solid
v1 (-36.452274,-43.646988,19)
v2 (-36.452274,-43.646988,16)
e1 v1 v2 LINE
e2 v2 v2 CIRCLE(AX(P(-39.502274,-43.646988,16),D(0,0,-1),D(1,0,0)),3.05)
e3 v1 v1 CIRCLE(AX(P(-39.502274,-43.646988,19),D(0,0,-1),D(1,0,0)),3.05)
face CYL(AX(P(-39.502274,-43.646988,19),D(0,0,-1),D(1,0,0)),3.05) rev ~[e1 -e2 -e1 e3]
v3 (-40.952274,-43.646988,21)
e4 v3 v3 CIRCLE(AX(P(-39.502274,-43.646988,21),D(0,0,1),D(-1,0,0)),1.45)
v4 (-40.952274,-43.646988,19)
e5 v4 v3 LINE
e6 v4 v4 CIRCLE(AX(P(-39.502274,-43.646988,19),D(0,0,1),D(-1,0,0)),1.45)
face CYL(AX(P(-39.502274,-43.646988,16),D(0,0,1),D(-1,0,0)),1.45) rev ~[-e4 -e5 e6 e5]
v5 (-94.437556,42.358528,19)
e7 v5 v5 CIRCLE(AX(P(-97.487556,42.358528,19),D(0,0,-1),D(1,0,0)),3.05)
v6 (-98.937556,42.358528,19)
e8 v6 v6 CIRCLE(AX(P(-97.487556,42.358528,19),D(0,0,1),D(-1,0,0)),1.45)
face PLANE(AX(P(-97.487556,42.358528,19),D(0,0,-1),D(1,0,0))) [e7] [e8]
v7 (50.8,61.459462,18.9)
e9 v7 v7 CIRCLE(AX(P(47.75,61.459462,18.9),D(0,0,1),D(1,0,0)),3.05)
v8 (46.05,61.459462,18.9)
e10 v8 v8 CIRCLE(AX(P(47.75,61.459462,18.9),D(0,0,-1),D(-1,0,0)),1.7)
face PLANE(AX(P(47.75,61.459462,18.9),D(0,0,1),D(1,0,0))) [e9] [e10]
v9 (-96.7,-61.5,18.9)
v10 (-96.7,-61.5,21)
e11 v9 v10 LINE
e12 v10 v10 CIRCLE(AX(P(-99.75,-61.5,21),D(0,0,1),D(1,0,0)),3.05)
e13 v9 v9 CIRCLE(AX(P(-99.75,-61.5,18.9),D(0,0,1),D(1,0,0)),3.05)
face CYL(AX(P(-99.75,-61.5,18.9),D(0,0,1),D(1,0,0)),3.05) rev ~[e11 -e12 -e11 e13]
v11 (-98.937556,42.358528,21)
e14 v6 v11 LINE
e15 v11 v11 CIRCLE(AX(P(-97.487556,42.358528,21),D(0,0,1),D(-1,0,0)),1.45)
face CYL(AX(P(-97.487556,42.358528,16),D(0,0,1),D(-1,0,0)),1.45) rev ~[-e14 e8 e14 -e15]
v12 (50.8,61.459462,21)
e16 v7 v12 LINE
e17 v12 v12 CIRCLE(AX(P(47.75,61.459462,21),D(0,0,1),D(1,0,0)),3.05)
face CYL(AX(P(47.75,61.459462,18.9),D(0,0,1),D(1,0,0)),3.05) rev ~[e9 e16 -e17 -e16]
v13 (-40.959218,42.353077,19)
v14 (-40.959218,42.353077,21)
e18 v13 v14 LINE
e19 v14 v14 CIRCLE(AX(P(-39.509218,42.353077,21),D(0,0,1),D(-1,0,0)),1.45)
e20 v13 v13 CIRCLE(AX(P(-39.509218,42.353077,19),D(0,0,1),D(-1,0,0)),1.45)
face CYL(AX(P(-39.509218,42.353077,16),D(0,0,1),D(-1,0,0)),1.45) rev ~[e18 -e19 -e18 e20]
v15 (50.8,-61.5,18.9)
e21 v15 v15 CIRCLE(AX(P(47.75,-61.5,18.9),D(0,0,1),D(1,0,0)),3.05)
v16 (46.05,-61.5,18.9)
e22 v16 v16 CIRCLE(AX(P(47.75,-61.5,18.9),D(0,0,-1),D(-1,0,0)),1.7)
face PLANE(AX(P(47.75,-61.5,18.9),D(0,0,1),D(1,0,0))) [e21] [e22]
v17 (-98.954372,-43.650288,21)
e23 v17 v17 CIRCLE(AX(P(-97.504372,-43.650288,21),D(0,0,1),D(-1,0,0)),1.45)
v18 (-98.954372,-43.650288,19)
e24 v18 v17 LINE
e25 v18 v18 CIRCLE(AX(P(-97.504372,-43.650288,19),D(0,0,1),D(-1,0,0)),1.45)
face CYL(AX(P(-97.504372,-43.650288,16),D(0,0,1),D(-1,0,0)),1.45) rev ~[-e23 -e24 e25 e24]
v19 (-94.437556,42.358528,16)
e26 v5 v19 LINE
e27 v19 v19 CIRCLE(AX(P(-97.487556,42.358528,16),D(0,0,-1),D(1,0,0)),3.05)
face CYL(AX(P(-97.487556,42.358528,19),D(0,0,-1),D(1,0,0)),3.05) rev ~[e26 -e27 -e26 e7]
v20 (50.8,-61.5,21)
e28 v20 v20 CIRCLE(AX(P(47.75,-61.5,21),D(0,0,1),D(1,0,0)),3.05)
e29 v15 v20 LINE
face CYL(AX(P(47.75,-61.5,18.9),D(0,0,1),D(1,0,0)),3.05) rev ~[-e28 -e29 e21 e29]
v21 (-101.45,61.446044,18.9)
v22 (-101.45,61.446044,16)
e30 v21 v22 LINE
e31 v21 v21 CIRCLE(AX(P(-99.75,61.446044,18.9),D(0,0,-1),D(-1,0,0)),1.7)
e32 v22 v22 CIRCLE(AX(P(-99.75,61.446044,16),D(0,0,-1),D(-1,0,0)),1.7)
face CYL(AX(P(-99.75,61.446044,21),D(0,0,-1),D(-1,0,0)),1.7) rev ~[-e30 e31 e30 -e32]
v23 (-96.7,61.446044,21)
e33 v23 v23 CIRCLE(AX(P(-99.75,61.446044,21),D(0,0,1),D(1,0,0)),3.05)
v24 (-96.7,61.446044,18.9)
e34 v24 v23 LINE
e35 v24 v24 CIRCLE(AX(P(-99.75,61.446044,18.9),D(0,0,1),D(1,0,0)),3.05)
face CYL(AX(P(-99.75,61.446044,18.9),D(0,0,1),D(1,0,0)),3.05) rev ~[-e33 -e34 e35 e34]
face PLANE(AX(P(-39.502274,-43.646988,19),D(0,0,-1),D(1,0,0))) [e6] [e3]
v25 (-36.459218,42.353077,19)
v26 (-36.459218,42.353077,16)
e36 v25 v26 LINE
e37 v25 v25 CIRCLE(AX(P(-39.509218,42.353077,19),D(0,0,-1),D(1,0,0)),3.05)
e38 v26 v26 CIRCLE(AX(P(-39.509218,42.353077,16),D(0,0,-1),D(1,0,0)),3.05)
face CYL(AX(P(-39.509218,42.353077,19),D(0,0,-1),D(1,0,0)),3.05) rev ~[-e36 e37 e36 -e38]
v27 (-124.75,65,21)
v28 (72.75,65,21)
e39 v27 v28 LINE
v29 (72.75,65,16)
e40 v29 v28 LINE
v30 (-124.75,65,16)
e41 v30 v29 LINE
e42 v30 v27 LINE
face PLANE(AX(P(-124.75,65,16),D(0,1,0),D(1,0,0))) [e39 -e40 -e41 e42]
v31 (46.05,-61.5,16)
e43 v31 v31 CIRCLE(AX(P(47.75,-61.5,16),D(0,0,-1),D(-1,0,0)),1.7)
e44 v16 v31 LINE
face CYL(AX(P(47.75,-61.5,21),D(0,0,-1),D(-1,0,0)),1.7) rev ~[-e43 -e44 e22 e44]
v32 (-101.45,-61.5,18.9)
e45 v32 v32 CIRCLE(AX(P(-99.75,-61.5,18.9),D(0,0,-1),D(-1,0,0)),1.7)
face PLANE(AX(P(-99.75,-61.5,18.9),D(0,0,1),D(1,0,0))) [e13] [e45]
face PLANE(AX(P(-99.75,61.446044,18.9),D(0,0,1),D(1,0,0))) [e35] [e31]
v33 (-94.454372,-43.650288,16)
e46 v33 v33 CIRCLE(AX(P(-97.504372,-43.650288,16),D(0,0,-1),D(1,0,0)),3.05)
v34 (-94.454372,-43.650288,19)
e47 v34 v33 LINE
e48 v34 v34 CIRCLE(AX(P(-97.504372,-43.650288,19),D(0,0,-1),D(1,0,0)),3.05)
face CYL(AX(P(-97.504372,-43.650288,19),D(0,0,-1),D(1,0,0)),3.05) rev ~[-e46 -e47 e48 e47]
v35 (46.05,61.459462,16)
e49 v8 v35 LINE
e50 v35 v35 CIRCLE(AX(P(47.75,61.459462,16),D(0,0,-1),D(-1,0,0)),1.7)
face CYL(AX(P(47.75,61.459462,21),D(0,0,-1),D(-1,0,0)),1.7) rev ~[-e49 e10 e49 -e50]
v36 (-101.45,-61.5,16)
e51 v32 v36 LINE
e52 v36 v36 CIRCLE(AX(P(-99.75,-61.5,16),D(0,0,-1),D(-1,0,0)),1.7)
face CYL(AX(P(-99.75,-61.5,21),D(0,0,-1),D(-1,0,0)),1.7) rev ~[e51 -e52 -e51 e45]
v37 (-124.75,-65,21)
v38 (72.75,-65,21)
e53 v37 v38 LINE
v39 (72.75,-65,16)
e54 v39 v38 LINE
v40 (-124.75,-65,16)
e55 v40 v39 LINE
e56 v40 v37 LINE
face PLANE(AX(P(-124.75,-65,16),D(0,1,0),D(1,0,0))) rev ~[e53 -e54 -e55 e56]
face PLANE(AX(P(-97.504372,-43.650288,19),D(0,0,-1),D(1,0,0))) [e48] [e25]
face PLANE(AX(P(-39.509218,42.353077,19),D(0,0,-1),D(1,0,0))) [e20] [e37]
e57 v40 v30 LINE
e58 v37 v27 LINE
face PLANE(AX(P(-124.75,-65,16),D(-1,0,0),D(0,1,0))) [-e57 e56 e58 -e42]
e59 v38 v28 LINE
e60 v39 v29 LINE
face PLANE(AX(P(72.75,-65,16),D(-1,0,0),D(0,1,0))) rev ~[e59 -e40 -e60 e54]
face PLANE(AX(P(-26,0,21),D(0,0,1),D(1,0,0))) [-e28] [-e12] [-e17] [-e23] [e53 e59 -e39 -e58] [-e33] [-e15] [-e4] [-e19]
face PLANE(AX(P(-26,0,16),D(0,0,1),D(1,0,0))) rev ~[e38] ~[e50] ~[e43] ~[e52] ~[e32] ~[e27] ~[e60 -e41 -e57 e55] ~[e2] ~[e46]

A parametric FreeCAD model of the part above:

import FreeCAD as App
import Part
import Sketcher
Q = App.Units.Quantity

doc = App.newDocument("Part")
body = doc.addObject("PartDesign::Body", "Body")

sketch1 = body.newObject("Sketcher::SketchObject", "Sketch")
sketch1.AttachmentSupport = (doc.getObject("XY_Plane"), [""])
sketch1.MapMode = "FlatFace"
sketch1.addGeometry([
    Part.LineSegment(App.Vector(-98.75, 65, 0), App.Vector(-98.75, -65, 0)),
    Part.LineSegment(App.Vector(-98.75, -65, 0), App.Vector(98.75, -65, 0)),
    Part.LineSegment(App.Vector(98.75, -65, 0), App.Vector(98.75, 65, 0)),
    Part.LineSegment(App.Vector(98.75, 65, 0), App.Vector(-98.75, 65, 0)),
], False)
sketch1.addConstraint([
    Sketcher.Constraint("Coincident", 0, 2, 1, 1),
    Sketcher.Constraint("Coincident", 1, 2, 2, 1),
    Sketcher.Constraint("Coincident", 2, 2, 3, 1),
    Sketcher.Constraint("Coincident", 3, 2, 0, 1),
    Sketcher.Constraint("Vertical", 0),
    Sketcher.Constraint("Horizontal", 1),
    Sketcher.Constraint("Vertical", 2),
    Sketcher.Constraint("Horizontal", 3),
    Sketcher.Constraint("Symmetric", 0, 2, 2, 2, -1, 1),
    Sketcher.Constraint("DistanceY", 0, 2, 0, 1, Q("130 mm")),
    Sketcher.Constraint("DistanceX", 1, 1, 1, 2, Q("197.5 mm")),
])
pad1 = body.newObject("PartDesign::Pad", "Pad")
pad1.Profile = sketch1
pad1.Length = 5

sketch2 = body.newObject("Sketcher::SketchObject", "Sketch001")
sketch2.AttachmentSupport = (doc.getObject("XY_Plane"), [""])
sketch2.MapMode = "FlatFace"
sketch2.AttachmentOffset = App.Placement(App.Vector(0, 0, 5), App.Rotation())
sketch2.addGeometry([
    Part.Circle(App.Vector(73.75, 61.459462, 0), App.Vector(0, 0, 1), 1.7),
    Part.Circle(App.Vector(-73.75, 61.446044, 0), App.Vector(0, 0, 1), 1.7),
    Part.Circle(App.Vector(-73.75, -61.5, 0), App.Vector(0, 0, 1), 1.7),
    Part.Circle(App.Vector(73.75, -61.5, 0), App.Vector(0, 0, 1), 1.7),
], False)
sketch2.addConstraint([
    Sketcher.Constraint("Equal", 0, 1),
    Sketcher.Constraint("Equal", 1, 2),
    Sketcher.Constraint("Equal", 2, 3),
    Sketcher.Constraint("Symmetric", 2, 3, 3, 3, -2),
    Sketcher.Constraint("Vertical", 1, 3, 2, 3),
    Sketcher.Constraint("Vertical", 0, 3, 3, 3),
    Sketcher.Constraint("Diameter", 0, Q("3.4 mm")),
    Sketcher.Constraint("DistanceY", 2, 3, -1, 1, Q("61.5 mm")),
    Sketcher.Constraint("DistanceX", 1, 3, 0, 3, Q("147.5 mm")),
    Sketcher.Constraint("DistanceY", 1, 3, 0, 3, Q("0.013418 mm")),
    Sketcher.Constraint("DistanceY", 2, 3, 0, 3, Q("122.959462 mm")),
])
doc.recompute()
hole = body.newObject("PartDesign::Hole", "Hole")
hole.Profile = sketch2
hole.ThreadType = "None"
hole.Diameter = 3.4
hole.DepthType = "Dimension"
hole.Depth = 25
hole.DrillPoint = "Flat"
hole.HoleCutType = "Counterbore"
hole.HoleCutDiameter = 6.1
hole.HoleCutDepth = 2.1

sketch3 = body.newObject("Sketcher::SketchObject", "Sketch002")
sketch3.AttachmentSupport = (doc.getObject("XY_Plane"), [""])
sketch3.MapMode = "FlatFace"
sketch3.addGeometry([
    Part.Circle(App.Vector(-13.502274, -43.646988, 0), App.Vector(0, 0, 1), 1.45),
    Part.Circle(App.Vector(-71.504372, -43.650288, 0), App.Vector(0, 0, 1), 1.45),
    Part.Circle(App.Vector(-13.509218, 42.353077, 0), App.Vector(0, 0, 1), 1.45),
    Part.Circle(App.Vector(-71.487556, 42.358528, 0), App.Vector(0, 0, 1), 1.45),
], False)
sketch3.addConstraint([
    Sketcher.Constraint("Equal", 0, 1),
    Sketcher.Constraint("Equal", 1, 2),
    Sketcher.Constraint("Equal", 2, 3),
    Sketcher.Constraint("Diameter", 0, Q("2.9 mm")),
    Sketcher.Constraint("DistanceX", 1, 3, 0, 3, Q("58.002098 mm")),
    Sketcher.Constraint("DistanceY", 1, 3, 0, 3, Q("0.0033 mm")),
    Sketcher.Constraint("DistanceY", 1, 3, -1, 1, Q("43.650288 mm")),
    Sketcher.Constraint("DistanceX", 2, 3, -1, 1, Q("13.509218 mm")),
    Sketcher.Constraint("DistanceY", 2, 3, 3, 3, Q("0.005451 mm")),
    Sketcher.Constraint("DistanceX", 3, 3, 0, 3, Q("57.985282 mm")),
    Sketcher.Constraint("DistanceX", 0, 3, -1, 1, Q("13.502274 mm")),
    Sketcher.Constraint("DistanceY", -1, 1, 2, 3, Q("42.353077 mm")),
])
doc.recompute()
hole2 = body.newObject("PartDesign::Hole", "Hole001")
hole2.Profile = sketch3
hole2.ThreadType = "None"
hole2.Diameter = 2.9
hole2.DepthType = "Dimension"
hole2.Depth = 25
hole2.DrillPoint = "Flat"
hole2.HoleCutType = "Counterbore"
hole2.HoleCutDiameter = 6.1
hole2.HoleCutDepth = 3
hole2.Reversed = True
body2 = doc.addObject("PartDesign::Body", "Body001")
doc.recompute()

body.Placement = App.Placement(App.Vector(-26, 0, 16), App.Rotation(App.Vector(0, 0, 1), 0))
boolean = body2.newObject("PartDesign::Boolean", "Boolean")
boolean.Type = "Fuse"
boolean.addObjects([body])

doc.recompute()
